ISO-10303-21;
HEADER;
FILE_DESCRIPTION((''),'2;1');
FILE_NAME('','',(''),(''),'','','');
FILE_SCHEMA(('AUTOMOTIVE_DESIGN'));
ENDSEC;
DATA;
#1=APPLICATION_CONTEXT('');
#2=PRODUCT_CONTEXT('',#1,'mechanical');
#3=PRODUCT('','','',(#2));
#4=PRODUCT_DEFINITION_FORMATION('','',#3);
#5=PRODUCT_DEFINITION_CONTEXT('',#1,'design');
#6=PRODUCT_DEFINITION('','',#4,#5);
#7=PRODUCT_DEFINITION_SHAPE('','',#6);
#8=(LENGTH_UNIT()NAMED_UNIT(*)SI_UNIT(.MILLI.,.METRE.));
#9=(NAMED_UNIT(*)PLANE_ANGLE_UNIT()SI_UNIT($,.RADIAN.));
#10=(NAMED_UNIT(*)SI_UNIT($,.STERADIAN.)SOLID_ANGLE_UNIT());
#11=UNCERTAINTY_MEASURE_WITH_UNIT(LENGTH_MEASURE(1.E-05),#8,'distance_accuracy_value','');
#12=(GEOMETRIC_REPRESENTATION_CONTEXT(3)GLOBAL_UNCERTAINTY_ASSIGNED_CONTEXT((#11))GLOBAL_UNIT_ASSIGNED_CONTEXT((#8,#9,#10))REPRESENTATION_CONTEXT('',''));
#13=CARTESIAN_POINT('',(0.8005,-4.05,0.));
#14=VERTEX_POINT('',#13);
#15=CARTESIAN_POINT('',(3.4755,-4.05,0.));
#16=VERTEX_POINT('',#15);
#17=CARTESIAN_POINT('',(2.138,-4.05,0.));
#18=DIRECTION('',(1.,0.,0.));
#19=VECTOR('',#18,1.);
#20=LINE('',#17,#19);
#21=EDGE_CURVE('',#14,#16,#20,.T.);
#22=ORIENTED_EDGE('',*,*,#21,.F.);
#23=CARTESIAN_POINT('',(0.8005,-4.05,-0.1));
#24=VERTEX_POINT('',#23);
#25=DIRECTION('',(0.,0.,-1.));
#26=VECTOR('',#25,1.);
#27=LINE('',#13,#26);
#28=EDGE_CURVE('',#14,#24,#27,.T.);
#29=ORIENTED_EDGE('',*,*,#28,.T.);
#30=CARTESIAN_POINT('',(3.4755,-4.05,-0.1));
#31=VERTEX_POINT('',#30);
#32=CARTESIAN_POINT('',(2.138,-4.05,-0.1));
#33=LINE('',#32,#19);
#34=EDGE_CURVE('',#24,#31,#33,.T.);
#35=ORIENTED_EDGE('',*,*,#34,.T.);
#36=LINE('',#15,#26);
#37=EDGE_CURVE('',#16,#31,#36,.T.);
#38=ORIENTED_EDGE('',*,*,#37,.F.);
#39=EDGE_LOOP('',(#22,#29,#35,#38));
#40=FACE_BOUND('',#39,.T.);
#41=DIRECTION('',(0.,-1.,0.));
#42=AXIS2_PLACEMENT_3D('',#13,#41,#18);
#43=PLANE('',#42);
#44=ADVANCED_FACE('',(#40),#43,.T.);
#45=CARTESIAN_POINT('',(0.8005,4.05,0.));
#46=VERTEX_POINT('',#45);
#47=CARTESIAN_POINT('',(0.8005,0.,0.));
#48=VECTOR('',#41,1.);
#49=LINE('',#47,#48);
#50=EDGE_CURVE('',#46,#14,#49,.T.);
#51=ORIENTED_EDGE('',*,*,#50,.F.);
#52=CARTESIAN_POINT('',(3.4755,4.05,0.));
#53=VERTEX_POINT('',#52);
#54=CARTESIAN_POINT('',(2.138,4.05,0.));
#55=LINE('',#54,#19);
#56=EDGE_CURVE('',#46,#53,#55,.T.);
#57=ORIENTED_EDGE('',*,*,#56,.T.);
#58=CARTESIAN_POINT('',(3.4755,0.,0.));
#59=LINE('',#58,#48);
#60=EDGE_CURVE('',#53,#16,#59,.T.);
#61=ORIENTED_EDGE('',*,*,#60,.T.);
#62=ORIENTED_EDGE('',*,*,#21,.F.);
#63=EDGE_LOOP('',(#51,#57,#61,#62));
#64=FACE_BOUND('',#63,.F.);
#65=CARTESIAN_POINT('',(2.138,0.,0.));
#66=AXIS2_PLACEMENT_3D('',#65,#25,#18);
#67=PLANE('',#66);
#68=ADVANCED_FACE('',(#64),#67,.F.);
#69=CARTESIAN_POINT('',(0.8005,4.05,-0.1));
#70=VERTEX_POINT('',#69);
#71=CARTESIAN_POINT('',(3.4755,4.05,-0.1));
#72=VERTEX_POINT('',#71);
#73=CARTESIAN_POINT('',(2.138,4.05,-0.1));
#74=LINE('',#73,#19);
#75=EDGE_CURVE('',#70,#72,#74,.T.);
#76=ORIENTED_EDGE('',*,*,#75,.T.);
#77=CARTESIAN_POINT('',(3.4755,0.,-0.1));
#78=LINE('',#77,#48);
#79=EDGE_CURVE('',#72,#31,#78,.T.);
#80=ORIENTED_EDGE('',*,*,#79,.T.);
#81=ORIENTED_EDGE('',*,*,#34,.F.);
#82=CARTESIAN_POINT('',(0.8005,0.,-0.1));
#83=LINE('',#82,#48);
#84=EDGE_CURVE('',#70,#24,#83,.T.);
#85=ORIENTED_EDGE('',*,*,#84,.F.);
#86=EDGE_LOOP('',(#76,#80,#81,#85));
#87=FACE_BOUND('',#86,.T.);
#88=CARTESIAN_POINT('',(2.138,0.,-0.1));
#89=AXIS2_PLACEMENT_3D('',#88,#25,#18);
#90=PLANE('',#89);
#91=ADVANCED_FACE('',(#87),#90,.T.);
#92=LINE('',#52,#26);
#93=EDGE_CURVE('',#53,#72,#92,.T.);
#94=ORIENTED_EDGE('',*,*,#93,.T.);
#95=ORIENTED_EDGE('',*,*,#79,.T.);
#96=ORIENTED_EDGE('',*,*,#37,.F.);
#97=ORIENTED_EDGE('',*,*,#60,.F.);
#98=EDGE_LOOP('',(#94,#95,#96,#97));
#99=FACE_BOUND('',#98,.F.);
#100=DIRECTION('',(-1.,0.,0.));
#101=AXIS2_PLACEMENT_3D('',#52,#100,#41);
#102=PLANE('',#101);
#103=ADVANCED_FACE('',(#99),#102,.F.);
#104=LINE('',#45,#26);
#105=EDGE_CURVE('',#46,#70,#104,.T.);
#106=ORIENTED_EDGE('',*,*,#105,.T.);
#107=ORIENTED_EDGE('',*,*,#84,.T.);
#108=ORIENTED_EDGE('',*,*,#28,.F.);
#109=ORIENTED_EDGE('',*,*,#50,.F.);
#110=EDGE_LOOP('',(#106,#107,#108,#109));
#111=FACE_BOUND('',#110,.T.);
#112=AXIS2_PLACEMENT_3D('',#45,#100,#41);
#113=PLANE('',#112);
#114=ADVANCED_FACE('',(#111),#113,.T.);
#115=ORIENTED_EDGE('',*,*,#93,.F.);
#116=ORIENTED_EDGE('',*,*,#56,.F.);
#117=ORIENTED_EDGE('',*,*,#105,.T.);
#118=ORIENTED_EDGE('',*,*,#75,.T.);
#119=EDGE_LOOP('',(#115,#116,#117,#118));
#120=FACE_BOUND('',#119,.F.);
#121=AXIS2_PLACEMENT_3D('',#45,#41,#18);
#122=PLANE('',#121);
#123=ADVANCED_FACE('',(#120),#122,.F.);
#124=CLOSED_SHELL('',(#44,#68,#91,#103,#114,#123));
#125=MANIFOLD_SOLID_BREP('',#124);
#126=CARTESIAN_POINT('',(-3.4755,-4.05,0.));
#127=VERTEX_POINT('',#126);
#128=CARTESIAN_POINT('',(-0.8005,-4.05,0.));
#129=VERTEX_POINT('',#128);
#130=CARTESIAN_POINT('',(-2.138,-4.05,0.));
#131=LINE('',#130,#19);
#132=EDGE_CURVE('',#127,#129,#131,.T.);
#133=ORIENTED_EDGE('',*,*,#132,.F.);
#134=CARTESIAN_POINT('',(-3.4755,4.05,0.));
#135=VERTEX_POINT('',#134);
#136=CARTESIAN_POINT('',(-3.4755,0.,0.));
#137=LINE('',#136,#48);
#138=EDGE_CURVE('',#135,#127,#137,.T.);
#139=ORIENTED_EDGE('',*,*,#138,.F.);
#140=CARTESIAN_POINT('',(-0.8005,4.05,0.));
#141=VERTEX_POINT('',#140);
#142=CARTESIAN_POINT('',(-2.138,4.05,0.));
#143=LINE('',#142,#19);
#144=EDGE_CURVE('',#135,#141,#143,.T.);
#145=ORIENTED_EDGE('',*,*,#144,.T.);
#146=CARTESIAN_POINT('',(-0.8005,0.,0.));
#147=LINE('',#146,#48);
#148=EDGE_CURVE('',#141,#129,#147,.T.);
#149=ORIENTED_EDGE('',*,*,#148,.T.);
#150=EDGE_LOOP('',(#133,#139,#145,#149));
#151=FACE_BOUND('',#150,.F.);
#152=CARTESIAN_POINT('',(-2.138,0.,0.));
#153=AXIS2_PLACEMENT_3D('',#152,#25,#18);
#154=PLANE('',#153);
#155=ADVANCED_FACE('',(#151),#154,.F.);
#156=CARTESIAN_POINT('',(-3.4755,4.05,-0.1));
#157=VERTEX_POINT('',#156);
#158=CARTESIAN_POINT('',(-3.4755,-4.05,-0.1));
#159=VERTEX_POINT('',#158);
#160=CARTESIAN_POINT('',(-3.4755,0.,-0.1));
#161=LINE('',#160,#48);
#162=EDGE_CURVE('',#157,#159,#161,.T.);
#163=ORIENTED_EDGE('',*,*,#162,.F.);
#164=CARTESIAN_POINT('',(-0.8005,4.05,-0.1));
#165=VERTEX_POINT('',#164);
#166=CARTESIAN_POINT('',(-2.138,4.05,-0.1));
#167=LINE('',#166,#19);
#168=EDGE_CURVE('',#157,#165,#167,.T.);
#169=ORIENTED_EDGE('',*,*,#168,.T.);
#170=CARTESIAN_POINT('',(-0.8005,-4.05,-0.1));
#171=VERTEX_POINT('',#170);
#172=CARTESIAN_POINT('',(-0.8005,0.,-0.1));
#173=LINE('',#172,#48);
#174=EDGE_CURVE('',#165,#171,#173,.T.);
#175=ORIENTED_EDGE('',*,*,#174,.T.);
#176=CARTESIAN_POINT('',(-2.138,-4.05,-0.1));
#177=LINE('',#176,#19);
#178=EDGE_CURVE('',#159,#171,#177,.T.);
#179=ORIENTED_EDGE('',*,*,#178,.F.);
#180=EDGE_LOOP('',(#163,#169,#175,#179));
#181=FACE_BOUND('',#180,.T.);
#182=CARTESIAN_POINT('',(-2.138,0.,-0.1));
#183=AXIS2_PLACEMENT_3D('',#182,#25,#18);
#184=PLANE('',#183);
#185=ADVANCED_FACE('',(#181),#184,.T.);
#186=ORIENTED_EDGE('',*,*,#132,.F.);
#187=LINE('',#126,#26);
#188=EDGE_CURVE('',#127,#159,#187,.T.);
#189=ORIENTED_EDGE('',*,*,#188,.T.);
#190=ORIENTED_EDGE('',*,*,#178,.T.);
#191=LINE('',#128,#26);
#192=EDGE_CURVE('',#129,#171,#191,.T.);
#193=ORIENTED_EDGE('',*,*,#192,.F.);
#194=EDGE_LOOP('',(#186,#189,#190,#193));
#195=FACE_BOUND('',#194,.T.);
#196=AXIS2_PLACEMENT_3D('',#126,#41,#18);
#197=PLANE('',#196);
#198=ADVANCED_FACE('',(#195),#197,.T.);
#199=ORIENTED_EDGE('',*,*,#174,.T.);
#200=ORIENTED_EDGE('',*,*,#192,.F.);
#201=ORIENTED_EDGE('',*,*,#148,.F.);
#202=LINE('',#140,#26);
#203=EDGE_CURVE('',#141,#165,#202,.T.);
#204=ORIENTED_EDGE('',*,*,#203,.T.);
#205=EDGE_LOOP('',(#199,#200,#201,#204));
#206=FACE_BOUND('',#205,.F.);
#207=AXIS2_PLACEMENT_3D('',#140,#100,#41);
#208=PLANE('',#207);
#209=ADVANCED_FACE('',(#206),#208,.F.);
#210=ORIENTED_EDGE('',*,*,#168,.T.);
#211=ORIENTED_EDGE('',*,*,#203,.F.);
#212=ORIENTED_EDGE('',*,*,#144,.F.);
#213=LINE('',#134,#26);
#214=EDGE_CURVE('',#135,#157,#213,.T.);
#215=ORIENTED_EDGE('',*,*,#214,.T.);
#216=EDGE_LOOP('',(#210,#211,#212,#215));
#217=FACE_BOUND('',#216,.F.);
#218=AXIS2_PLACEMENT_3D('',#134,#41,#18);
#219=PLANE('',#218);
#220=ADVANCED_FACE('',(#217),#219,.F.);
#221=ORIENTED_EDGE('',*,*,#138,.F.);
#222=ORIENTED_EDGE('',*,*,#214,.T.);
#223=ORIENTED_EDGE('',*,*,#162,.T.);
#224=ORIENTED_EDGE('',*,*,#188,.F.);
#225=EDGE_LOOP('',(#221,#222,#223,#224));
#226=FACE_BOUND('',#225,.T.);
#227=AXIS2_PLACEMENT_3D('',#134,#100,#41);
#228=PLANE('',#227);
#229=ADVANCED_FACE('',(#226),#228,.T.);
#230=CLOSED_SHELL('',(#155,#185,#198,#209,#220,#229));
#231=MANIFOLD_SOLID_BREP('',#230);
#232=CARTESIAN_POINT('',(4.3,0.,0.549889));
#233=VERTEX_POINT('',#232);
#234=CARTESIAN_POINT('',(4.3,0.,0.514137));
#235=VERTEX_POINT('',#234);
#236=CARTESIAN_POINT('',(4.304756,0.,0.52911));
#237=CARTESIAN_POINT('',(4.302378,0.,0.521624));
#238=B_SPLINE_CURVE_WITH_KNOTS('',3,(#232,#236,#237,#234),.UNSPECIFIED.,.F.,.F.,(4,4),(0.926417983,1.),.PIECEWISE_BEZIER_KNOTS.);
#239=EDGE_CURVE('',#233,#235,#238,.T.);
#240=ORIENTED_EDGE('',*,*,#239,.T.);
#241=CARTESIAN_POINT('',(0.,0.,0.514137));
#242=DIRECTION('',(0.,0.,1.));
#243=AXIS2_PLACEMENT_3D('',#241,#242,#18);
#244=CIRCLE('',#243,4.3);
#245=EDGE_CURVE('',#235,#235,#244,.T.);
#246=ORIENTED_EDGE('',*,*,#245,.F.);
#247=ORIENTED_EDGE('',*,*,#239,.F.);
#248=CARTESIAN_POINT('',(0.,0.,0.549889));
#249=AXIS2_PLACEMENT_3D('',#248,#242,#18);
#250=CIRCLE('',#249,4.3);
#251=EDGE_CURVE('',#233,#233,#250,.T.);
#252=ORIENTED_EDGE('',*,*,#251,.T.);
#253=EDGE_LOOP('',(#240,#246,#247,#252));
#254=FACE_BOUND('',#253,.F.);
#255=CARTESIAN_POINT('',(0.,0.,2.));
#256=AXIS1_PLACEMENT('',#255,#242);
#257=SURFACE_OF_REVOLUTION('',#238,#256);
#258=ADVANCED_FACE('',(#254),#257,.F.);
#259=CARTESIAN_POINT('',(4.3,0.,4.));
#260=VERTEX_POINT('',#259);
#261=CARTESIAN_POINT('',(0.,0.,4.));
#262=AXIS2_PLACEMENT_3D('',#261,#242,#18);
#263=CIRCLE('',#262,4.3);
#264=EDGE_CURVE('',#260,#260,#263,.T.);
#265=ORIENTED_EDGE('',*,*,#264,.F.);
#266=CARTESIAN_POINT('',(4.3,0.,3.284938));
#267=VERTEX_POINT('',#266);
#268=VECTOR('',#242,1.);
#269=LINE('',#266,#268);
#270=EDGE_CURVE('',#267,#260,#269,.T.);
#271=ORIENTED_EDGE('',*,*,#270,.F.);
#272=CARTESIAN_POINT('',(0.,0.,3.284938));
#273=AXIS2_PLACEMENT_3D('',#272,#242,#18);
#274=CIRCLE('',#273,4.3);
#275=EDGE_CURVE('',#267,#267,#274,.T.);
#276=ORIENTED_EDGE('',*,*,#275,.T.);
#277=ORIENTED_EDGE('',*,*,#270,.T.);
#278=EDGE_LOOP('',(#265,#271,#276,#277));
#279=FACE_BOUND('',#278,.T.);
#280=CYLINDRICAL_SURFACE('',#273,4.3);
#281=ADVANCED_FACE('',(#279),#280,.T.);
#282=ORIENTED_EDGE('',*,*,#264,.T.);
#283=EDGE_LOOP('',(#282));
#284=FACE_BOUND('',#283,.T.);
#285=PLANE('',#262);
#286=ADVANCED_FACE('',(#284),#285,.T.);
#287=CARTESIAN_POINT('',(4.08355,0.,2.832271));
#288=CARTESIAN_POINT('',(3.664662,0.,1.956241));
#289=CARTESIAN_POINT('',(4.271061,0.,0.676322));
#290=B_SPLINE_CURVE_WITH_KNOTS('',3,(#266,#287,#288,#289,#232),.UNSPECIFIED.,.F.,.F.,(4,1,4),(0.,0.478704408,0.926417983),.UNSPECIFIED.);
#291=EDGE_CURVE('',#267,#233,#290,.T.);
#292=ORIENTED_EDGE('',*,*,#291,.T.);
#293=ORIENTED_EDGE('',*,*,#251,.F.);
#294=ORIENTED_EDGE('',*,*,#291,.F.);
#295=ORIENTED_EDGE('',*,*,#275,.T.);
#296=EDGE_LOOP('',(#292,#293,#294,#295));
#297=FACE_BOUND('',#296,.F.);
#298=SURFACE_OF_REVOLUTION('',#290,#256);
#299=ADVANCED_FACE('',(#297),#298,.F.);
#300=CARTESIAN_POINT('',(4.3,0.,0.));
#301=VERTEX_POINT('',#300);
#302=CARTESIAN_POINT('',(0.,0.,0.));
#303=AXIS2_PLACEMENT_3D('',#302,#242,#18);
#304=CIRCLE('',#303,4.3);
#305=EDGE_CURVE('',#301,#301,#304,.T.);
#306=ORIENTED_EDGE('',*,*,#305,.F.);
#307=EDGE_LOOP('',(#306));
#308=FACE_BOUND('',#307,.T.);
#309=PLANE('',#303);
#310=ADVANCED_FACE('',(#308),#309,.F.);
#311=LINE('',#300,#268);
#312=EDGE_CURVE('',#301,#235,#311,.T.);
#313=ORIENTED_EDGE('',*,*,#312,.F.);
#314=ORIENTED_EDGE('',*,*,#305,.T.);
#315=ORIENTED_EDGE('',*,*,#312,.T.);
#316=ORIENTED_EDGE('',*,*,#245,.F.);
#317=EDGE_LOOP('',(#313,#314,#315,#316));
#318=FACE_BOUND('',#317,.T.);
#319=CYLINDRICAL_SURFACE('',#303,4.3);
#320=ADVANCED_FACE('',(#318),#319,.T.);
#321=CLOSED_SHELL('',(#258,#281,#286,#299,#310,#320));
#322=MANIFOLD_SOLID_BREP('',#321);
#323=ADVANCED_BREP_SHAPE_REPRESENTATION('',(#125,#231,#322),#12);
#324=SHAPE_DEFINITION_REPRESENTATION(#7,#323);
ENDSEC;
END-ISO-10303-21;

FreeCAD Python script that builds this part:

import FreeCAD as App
import Part
import Sketcher
Q = App.Units.Quantity


def add_polygon(sketch, points):
    """Adds a closed chain of lines whose ends are joined by coincident constraints."""
    first, n = sketch.GeometryCount, len(points)
    for a, b in zip(points, points[1:] + points[:1]):
        sketch.addGeometry(Part.LineSegment(App.Vector(*a, 0), App.Vector(*b, 0)), False)
    for i in range(n):
        sketch.addConstraint(Sketcher.Constraint("Coincident", first + i, 2, first + (i + 1) % n, 1))

doc = App.newDocument("Part")
body = doc.addObject("PartDesign::Body", "Body")

# Sketch on XZ plane
sketch1 = body.newObject("Sketcher::SketchObject", "Sketch")
sketch1.AttachmentSupport = (doc.getObject("XZ_Plane"), [""])
sketch1.MapMode = "FlatFace"
sketch1.addGeometry([
    Part.LineSegment(App.Vector(0, 4, 0), App.Vector(0, 0, 0)),  # 0
    Part.LineSegment(App.Vector(0, 0, 0), App.Vector(4.3, 0, 0)),  # 1
    Part.LineSegment(App.Vector(4.3, 0, 0), App.Vector(4.3, 0.514137, 0)),  # 2
    Part.BSplineCurve([App.Vector(4.3, 0.549889, 0), App.Vector(4.304756, 0.52911, 0), App.Vector(4.302378, 0.521624, 0), App.Vector(4.3, 0.514137, 0)], [4, 4], [0.926417983, 1], False, 3, [1, 1, 1, 1], False),  # 3
    Part.BSplineCurve([App.Vector(4.3, 3.284938, 0), App.Vector(4.08355, 2.832271, 0), App.Vector(3.664662, 1.956241, 0), App.Vector(4.271061, 0.676322, 0), App.Vector(4.3, 0.549889, 0)], [4, 1, 4], [0, 0.478704408, 0.926417983], False, 3, [1, 1, 1, 1, 1], False),  # 4
    Part.LineSegment(App.Vector(4.3, 3.284938, 0), App.Vector(4.3, 4, 0)),  # 5
    Part.LineSegment(App.Vector(4.3, 4, 0), App.Vector(0, 4, 0)),  # 6
], False)
sketch1.addConstraint([
    Sketcher.Constraint("Block", 3),
    Sketcher.Constraint("Block", 4),
    Sketcher.Constraint("Coincident", 0, 2, 1, 1),
    Sketcher.Constraint("Coincident", 1, 2, 2, 1),
    Sketcher.Constraint("Coincident", 2, 2, 3, 2),
    Sketcher.Constraint("Coincident", 4, 1, 5, 1),
    Sketcher.Constraint("Coincident", 5, 2, 6, 1),
    Sketcher.Constraint("Coincident", 6, 2, 0, 1),
    Sketcher.Constraint("Vertical", 0),
    Sketcher.Constraint("Horizontal", 1),
    Sketcher.Constraint("Vertical", 2),
    Sketcher.Constraint("Vertical", 5),
    Sketcher.Constraint("Horizontal", 6),
    Sketcher.Constraint("Coincident", 0, 2, -1, 1),
    Sketcher.Constraint("DistanceY", 0, 2, 0, 1, Q("4 mm")),
])
revolution = body.newObject("PartDesign::Revolution", "Revolution")
revolution.Profile = sketch1
revolution.ReferenceAxis = (sketch1, ["V_Axis"])
revolution.Angle = 360
body2 = doc.addObject("PartDesign::Body", "Body001")

# Sketch on XY plane
sketch2 = body2.newObject("Sketcher::SketchObject", "Sketch001")
sketch2.AttachmentSupport = (doc.getObject("XY_Plane001"), [""])
sketch2.MapMode = "FlatFace"
add_polygon(sketch2, [(0.8, -4), (0.8, 4), (3.5, 4), (3.5, -4)])  # lines 0-3
sketch2.addConstraint([
    Sketcher.Constraint("Vertical", 0),
    Sketcher.Constraint("Horizontal", 1),
    Sketcher.Constraint("Vertical", 2),
    Sketcher.Constraint("Horizontal", 3),
    Sketcher.Constraint("DistanceY", 0, 1, 0, 2, Q("8.1 mm")),
    Sketcher.Constraint("DistanceX", 1, 1, 1, 2, Q("2.675 mm")),
    Sketcher.Constraint("DistanceY", -1, 1, 0, 2, Q("4.05 mm")),
    Sketcher.Constraint("DistanceX", -1, 1, 0, 2, Q("0.8005 mm")),
])
pad1 = body2.newObject("PartDesign::Pad", "Pad")
pad1.Profile = sketch2
pad1.Length = 0.1
pad1.Reversed = True
body3 = doc.addObject("PartDesign::Body", "Body002")

# Sketch on XY plane
sketch3 = body3.newObject("Sketcher::SketchObject", "Sketch002")
sketch3.AttachmentSupport = (doc.getObject("XY_Plane002"), [""])
sketch3.MapMode = "FlatFace"
add_polygon(sketch3, [(-3.5, -4), (-3.5, 4), (-0.8, 4), (-0.8, -4)])  # lines 0-3
sketch3.addConstraint([
    Sketcher.Constraint("Vertical", 0),
    Sketcher.Constraint("Horizontal", 1),
    Sketcher.Constraint("Vertical", 2),
    Sketcher.Constraint("Horizontal", 3),
    Sketcher.Constraint("DistanceY", 0, 1, 0, 2, Q("8.1 mm")),
    Sketcher.Constraint("DistanceX", 1, 1, 1, 2, Q("2.675 mm")),
    Sketcher.Constraint("DistanceY", -1, 1, 0, 2, Q("4.05 mm")),
    Sketcher.Constraint("DistanceX", 0, 2, -1, 1, Q("3.4755 mm")),
])
pad2 = body3.newObject("PartDesign::Pad", "Pad001")
pad2.Profile = sketch3
pad2.Length = 0.1
pad2.Reversed = True

doc.recompute()
